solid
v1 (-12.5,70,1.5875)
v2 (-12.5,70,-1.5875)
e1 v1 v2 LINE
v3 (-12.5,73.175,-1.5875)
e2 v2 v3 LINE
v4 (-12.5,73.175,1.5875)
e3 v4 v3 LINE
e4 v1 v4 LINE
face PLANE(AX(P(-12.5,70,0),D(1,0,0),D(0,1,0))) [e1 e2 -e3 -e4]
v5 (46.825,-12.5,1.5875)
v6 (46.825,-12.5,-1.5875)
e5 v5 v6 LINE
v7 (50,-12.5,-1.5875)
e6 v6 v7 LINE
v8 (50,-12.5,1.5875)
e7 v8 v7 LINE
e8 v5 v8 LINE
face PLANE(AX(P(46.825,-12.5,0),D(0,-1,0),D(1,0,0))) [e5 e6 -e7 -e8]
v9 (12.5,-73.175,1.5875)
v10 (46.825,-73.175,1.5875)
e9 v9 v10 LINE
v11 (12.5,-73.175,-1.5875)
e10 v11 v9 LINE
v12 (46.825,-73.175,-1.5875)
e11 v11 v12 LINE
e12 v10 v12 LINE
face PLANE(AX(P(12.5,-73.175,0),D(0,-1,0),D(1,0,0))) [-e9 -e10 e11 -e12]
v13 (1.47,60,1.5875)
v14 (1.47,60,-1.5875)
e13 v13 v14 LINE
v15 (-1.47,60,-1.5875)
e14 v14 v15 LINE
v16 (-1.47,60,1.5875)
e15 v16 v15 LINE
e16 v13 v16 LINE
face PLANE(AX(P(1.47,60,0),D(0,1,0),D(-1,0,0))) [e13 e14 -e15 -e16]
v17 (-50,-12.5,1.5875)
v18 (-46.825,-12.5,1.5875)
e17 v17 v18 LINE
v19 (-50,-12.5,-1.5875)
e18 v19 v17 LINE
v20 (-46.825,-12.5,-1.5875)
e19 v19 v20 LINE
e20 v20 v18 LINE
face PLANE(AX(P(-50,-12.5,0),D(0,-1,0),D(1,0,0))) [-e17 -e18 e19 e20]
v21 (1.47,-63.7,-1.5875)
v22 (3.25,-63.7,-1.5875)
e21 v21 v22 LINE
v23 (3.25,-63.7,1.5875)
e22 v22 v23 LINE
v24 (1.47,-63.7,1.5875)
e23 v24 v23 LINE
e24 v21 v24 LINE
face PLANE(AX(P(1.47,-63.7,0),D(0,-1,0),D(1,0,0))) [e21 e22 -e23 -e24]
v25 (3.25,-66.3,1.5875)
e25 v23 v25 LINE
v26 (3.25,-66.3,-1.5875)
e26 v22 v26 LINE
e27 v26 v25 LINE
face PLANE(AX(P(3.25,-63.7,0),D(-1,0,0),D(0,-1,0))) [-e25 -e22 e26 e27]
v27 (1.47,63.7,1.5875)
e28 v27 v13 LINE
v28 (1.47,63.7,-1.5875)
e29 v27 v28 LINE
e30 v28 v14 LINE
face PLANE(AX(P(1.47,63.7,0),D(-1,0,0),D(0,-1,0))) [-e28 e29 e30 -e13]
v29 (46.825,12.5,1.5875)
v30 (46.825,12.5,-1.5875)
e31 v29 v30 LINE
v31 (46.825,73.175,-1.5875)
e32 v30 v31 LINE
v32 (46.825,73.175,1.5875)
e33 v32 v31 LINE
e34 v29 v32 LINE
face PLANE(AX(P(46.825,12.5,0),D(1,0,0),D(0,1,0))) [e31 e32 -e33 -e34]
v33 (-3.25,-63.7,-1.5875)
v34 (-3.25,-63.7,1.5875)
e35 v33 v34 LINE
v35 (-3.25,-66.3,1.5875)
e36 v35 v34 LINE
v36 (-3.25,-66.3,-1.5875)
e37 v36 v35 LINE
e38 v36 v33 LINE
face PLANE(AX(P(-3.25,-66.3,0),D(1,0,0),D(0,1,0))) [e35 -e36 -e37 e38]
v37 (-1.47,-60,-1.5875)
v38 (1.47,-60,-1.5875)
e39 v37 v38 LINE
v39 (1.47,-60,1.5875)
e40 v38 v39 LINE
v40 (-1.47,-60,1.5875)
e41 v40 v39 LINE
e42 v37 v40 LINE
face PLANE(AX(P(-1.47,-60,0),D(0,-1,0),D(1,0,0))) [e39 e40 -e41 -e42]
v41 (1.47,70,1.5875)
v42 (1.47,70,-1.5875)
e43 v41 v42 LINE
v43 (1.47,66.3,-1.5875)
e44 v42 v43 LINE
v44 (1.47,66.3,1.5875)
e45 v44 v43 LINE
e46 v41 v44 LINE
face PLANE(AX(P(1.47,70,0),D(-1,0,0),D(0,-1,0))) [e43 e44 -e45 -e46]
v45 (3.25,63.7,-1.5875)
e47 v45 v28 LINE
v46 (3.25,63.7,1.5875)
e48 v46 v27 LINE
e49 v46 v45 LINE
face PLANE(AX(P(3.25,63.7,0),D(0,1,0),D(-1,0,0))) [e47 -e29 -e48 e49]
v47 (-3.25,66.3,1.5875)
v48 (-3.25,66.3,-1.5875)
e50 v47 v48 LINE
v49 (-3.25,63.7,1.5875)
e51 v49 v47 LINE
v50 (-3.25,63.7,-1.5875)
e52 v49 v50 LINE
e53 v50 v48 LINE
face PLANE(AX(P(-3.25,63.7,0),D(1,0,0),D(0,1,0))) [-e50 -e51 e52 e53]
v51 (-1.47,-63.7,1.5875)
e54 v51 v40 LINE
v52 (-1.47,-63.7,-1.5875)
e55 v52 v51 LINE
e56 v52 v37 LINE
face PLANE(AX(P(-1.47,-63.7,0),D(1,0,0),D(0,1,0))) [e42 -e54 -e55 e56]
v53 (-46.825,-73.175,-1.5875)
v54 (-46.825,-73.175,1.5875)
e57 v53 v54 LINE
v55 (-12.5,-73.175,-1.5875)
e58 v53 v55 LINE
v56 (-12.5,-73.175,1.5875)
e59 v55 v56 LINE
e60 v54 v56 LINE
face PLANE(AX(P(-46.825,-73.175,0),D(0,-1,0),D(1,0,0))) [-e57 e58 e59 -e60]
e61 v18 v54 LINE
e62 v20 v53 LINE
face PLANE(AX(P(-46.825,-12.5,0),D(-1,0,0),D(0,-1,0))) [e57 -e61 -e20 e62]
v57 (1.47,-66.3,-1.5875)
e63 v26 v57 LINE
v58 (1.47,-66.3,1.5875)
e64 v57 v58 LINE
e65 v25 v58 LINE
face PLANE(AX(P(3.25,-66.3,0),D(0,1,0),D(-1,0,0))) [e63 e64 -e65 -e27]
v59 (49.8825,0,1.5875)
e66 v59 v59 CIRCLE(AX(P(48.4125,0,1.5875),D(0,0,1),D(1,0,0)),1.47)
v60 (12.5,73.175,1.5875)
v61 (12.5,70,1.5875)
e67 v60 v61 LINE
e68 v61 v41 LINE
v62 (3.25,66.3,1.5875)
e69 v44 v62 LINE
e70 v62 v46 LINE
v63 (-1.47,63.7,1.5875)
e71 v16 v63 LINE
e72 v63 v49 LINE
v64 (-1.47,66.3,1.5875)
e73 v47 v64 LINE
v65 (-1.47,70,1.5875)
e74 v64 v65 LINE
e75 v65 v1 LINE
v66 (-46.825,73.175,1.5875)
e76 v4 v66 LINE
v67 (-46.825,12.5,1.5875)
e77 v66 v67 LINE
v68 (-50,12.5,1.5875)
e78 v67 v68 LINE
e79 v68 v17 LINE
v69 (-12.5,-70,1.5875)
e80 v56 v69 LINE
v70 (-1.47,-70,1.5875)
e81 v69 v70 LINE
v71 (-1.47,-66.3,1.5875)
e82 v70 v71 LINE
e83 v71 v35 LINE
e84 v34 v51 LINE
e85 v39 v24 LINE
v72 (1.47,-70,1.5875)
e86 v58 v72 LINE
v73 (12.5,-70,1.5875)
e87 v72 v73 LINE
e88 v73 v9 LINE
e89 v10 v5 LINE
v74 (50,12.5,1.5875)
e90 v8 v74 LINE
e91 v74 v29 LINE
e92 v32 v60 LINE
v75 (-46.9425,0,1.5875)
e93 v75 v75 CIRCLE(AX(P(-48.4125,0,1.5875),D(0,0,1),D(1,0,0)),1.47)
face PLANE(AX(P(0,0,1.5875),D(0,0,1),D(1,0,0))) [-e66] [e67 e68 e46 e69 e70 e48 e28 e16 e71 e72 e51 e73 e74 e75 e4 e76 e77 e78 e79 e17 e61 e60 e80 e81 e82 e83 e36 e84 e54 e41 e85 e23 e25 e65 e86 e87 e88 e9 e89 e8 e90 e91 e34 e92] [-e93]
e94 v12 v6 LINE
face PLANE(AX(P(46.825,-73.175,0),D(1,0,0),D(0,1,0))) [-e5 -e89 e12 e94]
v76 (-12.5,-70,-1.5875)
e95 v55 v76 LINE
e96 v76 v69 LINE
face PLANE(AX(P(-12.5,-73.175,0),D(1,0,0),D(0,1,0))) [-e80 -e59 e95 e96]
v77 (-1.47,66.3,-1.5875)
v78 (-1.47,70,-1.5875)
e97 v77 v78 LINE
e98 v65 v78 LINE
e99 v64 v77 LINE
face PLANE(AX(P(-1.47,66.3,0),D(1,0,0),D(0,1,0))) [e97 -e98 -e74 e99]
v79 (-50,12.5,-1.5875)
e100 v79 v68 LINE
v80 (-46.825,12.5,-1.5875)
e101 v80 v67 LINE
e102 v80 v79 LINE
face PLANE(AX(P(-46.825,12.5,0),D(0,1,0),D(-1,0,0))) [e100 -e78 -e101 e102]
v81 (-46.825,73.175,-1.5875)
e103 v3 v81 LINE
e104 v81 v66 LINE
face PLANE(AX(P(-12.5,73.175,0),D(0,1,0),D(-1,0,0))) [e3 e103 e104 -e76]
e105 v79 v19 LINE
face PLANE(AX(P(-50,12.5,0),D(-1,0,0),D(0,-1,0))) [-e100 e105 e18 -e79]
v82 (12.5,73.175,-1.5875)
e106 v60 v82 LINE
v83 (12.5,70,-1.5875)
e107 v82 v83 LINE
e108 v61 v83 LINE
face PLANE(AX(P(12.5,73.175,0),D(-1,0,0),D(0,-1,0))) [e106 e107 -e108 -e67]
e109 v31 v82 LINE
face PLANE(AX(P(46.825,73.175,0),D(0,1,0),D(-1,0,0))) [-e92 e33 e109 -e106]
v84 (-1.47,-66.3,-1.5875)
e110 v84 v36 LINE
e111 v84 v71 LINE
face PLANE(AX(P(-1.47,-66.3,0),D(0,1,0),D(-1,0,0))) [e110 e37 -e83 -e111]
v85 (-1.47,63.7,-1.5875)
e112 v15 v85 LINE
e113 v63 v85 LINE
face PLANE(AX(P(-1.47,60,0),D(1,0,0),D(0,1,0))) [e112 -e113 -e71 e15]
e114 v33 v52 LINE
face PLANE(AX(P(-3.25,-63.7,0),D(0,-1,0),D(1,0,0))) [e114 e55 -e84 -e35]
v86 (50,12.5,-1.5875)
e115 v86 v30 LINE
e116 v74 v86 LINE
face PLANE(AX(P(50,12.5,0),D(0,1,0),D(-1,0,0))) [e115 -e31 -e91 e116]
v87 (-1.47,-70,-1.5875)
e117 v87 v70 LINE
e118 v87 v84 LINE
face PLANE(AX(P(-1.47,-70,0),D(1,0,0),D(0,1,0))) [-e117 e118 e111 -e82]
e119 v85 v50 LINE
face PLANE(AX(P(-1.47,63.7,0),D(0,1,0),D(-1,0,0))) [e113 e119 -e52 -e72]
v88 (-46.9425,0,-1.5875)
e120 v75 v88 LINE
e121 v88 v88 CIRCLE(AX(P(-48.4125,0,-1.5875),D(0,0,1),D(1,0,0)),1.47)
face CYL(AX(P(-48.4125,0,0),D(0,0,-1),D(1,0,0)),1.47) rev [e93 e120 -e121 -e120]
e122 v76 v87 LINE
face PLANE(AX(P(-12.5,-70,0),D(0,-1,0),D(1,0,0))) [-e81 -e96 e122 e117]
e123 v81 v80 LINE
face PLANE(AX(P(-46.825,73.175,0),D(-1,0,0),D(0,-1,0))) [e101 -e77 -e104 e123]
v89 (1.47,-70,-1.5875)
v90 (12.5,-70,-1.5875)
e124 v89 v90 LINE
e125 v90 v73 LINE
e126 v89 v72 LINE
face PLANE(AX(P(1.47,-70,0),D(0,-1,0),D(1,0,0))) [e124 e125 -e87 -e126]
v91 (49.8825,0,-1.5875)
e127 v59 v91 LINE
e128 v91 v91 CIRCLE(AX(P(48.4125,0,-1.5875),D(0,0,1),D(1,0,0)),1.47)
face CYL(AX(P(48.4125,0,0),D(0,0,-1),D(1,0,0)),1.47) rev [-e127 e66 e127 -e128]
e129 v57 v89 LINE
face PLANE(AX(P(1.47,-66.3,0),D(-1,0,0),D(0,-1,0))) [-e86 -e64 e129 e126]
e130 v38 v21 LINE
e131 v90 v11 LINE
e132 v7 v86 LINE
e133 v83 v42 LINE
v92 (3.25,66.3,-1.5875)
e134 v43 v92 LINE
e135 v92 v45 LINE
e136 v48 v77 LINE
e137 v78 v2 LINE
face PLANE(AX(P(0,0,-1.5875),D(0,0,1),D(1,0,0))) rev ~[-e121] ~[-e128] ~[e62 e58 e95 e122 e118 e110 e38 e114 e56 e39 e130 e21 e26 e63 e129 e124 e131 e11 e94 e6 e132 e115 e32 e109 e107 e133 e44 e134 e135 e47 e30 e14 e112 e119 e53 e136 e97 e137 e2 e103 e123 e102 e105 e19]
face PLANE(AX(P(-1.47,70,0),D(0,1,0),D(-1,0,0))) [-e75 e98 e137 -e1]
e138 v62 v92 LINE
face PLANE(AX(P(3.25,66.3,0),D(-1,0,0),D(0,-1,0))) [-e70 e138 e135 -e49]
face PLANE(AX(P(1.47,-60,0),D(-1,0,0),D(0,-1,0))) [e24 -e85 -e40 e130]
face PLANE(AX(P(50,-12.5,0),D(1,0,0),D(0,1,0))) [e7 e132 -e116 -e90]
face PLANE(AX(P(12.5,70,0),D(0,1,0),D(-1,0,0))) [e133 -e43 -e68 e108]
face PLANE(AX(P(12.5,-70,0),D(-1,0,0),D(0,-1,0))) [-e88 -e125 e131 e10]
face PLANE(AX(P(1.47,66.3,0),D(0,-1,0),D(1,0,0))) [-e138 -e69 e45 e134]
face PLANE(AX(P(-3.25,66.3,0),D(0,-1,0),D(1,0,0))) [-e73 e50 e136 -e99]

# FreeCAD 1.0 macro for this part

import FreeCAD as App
import Part
import Sketcher
from FreeCAD import Vector

doc = App.newDocument("Part")
body = doc.addObject("PartDesign::Body", "Body")

sketch1 = body.newObject("Sketcher::SketchObject", "Sketch")
sketch1.AttachmentSupport = (doc.getObject("XY_Plane"), [""])
sketch1.MapMode = "FlatFace"
sketch1.addGeometry([
    Part.LineSegment(Vector(-12.5, 73.2, 0), Vector(-46.8, 73.2, 0)),
    Part.LineSegment(Vector(-46.8, 73.2, 0), Vector(-46.8, 12.5, 0)),
    Part.LineSegment(Vector(-46.8, 12.5, 0), Vector(-50, 12.5, 0)),
    Part.LineSegment(Vector(-50, 12.5, 0), Vector(-50, -12.5, 0)),
    Part.LineSegment(Vector(-50, -12.5, 0), Vector(-46.8, -12.5, 0)),
    Part.LineSegment(Vector(-46.8, -12.5, 0), Vector(-46.8, -73.2, 0)),
    Part.LineSegment(Vector(-46.8, -73.2, 0), Vector(-12.5, -73.2, 0)),
    Part.LineSegment(Vector(-12.5, -73.2, 0), Vector(-12.5, -70, 0)),
    Part.LineSegment(Vector(-12.5, -70, 0), Vector(-1.5, -70, 0)),
    Part.LineSegment(Vector(-1.5, -70, 0), Vector(-1.5, -66.3, 0)),
    Part.LineSegment(Vector(-1.5, -66.3, 0), Vector(-3.2, -66.3, 0)),
    Part.LineSegment(Vector(-3.2, -66.3, 0), Vector(-3.2, -63.7, 0)),
    Part.LineSegment(Vector(-3.2, -63.7, 0), Vector(-1.5, -63.7, 0)),
    Part.LineSegment(Vector(-1.5, -63.7, 0), Vector(-1.5, -60, 0)),
    Part.LineSegment(Vector(-1.5, -60, 0), Vector(1.5, -60, 0)),
    Part.LineSegment(Vector(1.5, -60, 0), Vector(1.5, -63.7, 0)),
    Part.LineSegment(Vector(1.5, -63.7, 0), Vector(3.2, -63.7, 0)),
    Part.LineSegment(Vector(3.2, -63.7, 0), Vector(3.2, -66.3, 0)),
    Part.LineSegment(Vector(3.2, -66.3, 0), Vector(1.5, -66.3, 0)),
    Part.LineSegment(Vector(1.5, -66.3, 0), Vector(1.5, -70, 0)),
    Part.LineSegment(Vector(1.5, -70, 0), Vector(12.5, -70, 0)),
    Part.LineSegment(Vector(12.5, -70, 0), Vector(12.5, -73.2, 0)),
    Part.LineSegment(Vector(12.5, -73.2, 0), Vector(46.8, -73.2, 0)),
    Part.LineSegment(Vector(46.8, -73.2, 0), Vector(46.8, -12.5, 0)),
    Part.LineSegment(Vector(46.8, -12.5, 0), Vector(50, -12.5, 0)),
    Part.LineSegment(Vector(50, -12.5, 0), Vector(50, 12.5, 0)),
    Part.LineSegment(Vector(50, 12.5, 0), Vector(46.8, 12.5, 0)),
    Part.LineSegment(Vector(46.8, 12.5, 0), Vector(46.8, 73.2, 0)),
    Part.LineSegment(Vector(46.8, 73.2, 0), Vector(12.5, 73.2, 0)),
    Part.LineSegment(Vector(12.5, 73.2, 0), Vector(12.5, 70, 0)),
    Part.LineSegment(Vector(12.5, 70, 0), Vector(1.5, 70, 0)),
    Part.LineSegment(Vector(1.5, 70, 0), Vector(1.5, 66.3, 0)),
    Part.LineSegment(Vector(1.5, 66.3, 0), Vector(3.2, 66.3, 0)),
    Part.LineSegment(Vector(3.2, 66.3, 0), Vector(3.2, 63.7, 0)),
    Part.LineSegment(Vector(3.2, 63.7, 0), Vector(1.5, 63.7, 0)),
    Part.LineSegment(Vector(1.5, 63.7, 0), Vector(1.5, 60, 0)),
    Part.LineSegment(Vector(1.5, 60, 0), Vector(-1.5, 60, 0)),
    Part.LineSegment(Vector(-1.5, 60, 0), Vector(-1.5, 63.7, 0)),
    Part.LineSegment(Vector(-1.5, 63.7, 0), Vector(-3.2, 63.7, 0)),
    Part.LineSegment(Vector(-3.2, 63.7, 0), Vector(-3.2, 66.3, 0)),
    Part.LineSegment(Vector(-3.2, 66.3, 0), Vector(-1.5, 66.3, 0)),
    Part.LineSegment(Vector(-1.5, 66.3, 0), Vector(-1.5, 70, 0)),
    Part.LineSegment(Vector(-1.5, 70, 0), Vector(-12.5, 70, 0)),
    Part.LineSegment(Vector(-12.5, 70, 0), Vector(-12.5, 73.2, 0)),
    Part.Circle(Vector(-48.4, 0, 0), Vector(0, 0, 1), 1.5),
    Part.Circle(Vector(48.4, 0, 0), Vector(0, 0, 1), 1.5),
], False)
sketch1.addConstraint([
    Sketcher.Constraint("Coincident", 0, 2, 1, 1),
    Sketcher.Constraint("Coincident", 1, 2, 2, 1),
    Sketcher.Constraint("Coincident", 2, 2, 3, 1),
    Sketcher.Constraint("Coincident", 3, 2, 4, 1),
    Sketcher.Constraint("Coincident", 4, 2, 5, 1),
    Sketcher.Constraint("Coincident", 5, 2, 6, 1),
    Sketcher.Constraint("Coincident", 6, 2, 7, 1),
    Sketcher.Constraint("Coincident", 7, 2, 8, 1),
    Sketcher.Constraint("Coincident", 8, 2, 9, 1),
    Sketcher.Constraint("Coincident", 9, 2, 10, 1),
    Sketcher.Constraint("Coincident", 10, 2, 11, 1),
    Sketcher.Constraint("Coincident", 11, 2, 12, 1),
    Sketcher.Constraint("Coincident", 12, 2, 13, 1),
    Sketcher.Constraint("Coincident", 13, 2, 14, 1),
    Sketcher.Constraint("Coincident", 14, 2, 15, 1),
    Sketcher.Constraint("Coincident", 15, 2, 16, 1),
    Sketcher.Constraint("Coincident", 16, 2, 17, 1),
    Sketcher.Constraint("Coincident", 17, 2, 18, 1),
    Sketcher.Constraint("Coincident", 18, 2, 19, 1),
    Sketcher.Constraint("Coincident", 19, 2, 20, 1),
    Sketcher.Constraint("Coincident", 20, 2, 21, 1),
    Sketcher.Constraint("Coincident", 21, 2, 22, 1),
    Sketcher.Constraint("Coincident", 22, 2, 23, 1),
    Sketcher.Constraint("Coincident", 23, 2, 24, 1),
    Sketcher.Constraint("Coincident", 24, 2, 25, 1),
    Sketcher.Constraint("Coincident", 25, 2, 26, 1),
    Sketcher.Constraint("Coincident", 26, 2, 27, 1),
    Sketcher.Constraint("Coincident", 27, 2, 28, 1),
    Sketcher.Constraint("Coincident", 28, 2, 29, 1),
    Sketcher.Constraint("Coincident", 29, 2, 30, 1),
    Sketcher.Constraint("Coincident", 30, 2, 31, 1),
    Sketcher.Constraint("Coincident", 31, 2, 32, 1),
    Sketcher.Constraint("Coincident", 32, 2, 33, 1),
    Sketcher.Constraint("Coincident", 33, 2, 34, 1),
    Sketcher.Constraint("Coincident", 34, 2, 35, 1),
    Sketcher.Constraint("Coincident", 35, 2, 36, 1),
    Sketcher.Constraint("Coincident", 36, 2, 37, 1),
    Sketcher.Constraint("Coincident", 37, 2, 38, 1),
    Sketcher.Constraint("Coincident", 38, 2, 39, 1),
    Sketcher.Constraint("Coincident", 39, 2, 40, 1),
    Sketcher.Constraint("Coincident", 40, 2, 41, 1),
    Sketcher.Constraint("Coincident", 41, 2, 42, 1),
    Sketcher.Constraint("Coincident", 42, 2, 43, 1),
    Sketcher.Constraint("Coincident", 43, 2, 0, 1),
    Sketcher.Constraint("Horizontal", 0),
    Sketcher.Constraint("Vertical", 1),
    Sketcher.Constraint("Horizontal", 2),
    Sketcher.Constraint("Vertical", 3),
    Sketcher.Constraint("Horizontal", 4),
    Sketcher.Constraint("Vertical", 5),
    Sketcher.Constraint("Horizontal", 6),
    Sketcher.Constraint("Vertical", 7),
    Sketcher.Constraint("Horizontal", 8),
    Sketcher.Constraint("Vertical", 9),
    Sketcher.Constraint("Horizontal", 10),
    Sketcher.Constraint("Vertical", 11),
    Sketcher.Constraint("Horizontal", 12),
    Sketcher.Constraint("Vertical", 13),
    Sketcher.Constraint("Horizontal", 14),
    Sketcher.Constraint("Vertical", 15),
    Sketcher.Constraint("Horizontal", 16),
    Sketcher.Constraint("Vertical", 17),
    Sketcher.Constraint("Horizontal", 18),
    Sketcher.Constraint("Vertical", 19),
    Sketcher.Constraint("Horizontal", 20),
    Sketcher.Constraint("Vertical", 21),
    Sketcher.Constraint("Horizontal", 22),
    Sketcher.Constraint("Vertical", 23),
    Sketcher.Constraint("Horizontal", 24),
    Sketcher.Constraint("Vertical", 25),
    Sketcher.Constraint("Horizontal", 26),
    Sketcher.Constraint("Vertical", 27),
    Sketcher.Constraint("Horizontal", 28),
    Sketcher.Constraint("Vertical", 29),
    Sketcher.Constraint("Horizontal", 30),
    Sketcher.Constraint("Vertical", 31),
    Sketcher.Constraint("Horizontal", 32),
    Sketcher.Constraint("Vertical", 33),
    Sketcher.Constraint("Horizontal", 34),
    Sketcher.Constraint("Vertical", 35),
    Sketcher.Constraint("Horizontal", 36),
    Sketcher.Constraint("Vertical", 37),
    Sketcher.Constraint("Horizontal", 38),
    Sketcher.Constraint("Vertical", 39),
    Sketcher.Constraint("Horizontal", 40),
    Sketcher.Constraint("Vertical", 41),
    Sketcher.Constraint("Horizontal", 42),
    Sketcher.Constraint("Vertical", 43),
    Sketcher.Constraint("Equal", 44, 45),
    Sketcher.Constraint("Symmetric", 44, 3, 45, 3, -1, 1),
    Sketcher.Constraint("Symmetric", 0, 2, 22, 2, -1, 1),
    Sketcher.Constraint("Symmetric", 2, 2, 24, 2, -1, 1),
    Sketcher.Constraint("Symmetric", 4, 2, 26, 2, -1, 1),
    Sketcher.Constraint("Symmetric", 6, 2, 28, 2, -1, 1),
    Sketcher.Constraint("Symmetric", 8, 2, 30, 2, -1, 1),
    Sketcher.Constraint("Symmetric", 10, 2, 32, 2, -1, 1),
    Sketcher.Constraint("Symmetric", 12, 2, 34, 2, -1, 1),
    Sketcher.Constraint("Symmetric", 14, 2, 36, 2, -1, 1),
    Sketcher.Constraint("Symmetric", 16, 2, 38, 2, -1, 1),
    Sketcher.Constraint("Symmetric", 18, 2, 40, 2, -1, 1),
    Sketcher.Constraint("Symmetric", 20, 2, 42, 2, -1, 1),
    Sketcher.Constraint("Symmetric", 12, 2, 15, 2, -2),
    Sketcher.Constraint("Symmetric", 10, 2, 17, 2, -2),
    Sketcher.Constraint("Symmetric", 8, 2, 19, 2, -2),
    Sketcher.Constraint("Symmetric", 6, 2, 21, 2, -2),
    Sketcher.Constraint("Symmetric", 4, 2, 23, 2, -2),
    Sketcher.Constraint("PointOnObject", 44, 3, -1),
    Sketcher.Constraint("Vertical", 9, 2, 12, 2),
    Sketcher.Constraint("Equal", 26, 7),
    Sketcher.Constraint("Equal", 9, 13),
    Sketcher.Constraint("Diameter", 44, 2.94),
    Sketcher.Constraint("DistanceY", 3, 2, 3, 1, 25.0),
    Sketcher.Constraint("DistanceY", 9, 1, 9, 2, 3.7),
    Sketcher.Constraint("DistanceY", 11, 1, 11, 2, 2.6),
    Sketcher.Constraint("DistanceX", 2, 2, -1, 1, 50.0),
    Sketcher.Constraint("DistanceY", 7, 2, -1, 1, 70.0),
    Sketcher.Constraint("DistanceX", 8, 1, 8, 2, 11.03),
    Sketcher.Constraint("DistanceX", 10, 2, 10, 1, 1.78),
    Sketcher.Constraint("DistanceX", 14, 1, 14, 2, 2.94),
    Sketcher.Constraint("DistanceX", 0, 2, 0, 1, 34.325),
    Sketcher.Constraint("DistanceX", 44, 3, 45, 3, 96.825),
])
pad1 = body.newObject("PartDesign::Pad", "Pad")
pad1.Profile = sketch1
pad1.Length = 3.175
pad1.Midplane = True

doc.recompute()
